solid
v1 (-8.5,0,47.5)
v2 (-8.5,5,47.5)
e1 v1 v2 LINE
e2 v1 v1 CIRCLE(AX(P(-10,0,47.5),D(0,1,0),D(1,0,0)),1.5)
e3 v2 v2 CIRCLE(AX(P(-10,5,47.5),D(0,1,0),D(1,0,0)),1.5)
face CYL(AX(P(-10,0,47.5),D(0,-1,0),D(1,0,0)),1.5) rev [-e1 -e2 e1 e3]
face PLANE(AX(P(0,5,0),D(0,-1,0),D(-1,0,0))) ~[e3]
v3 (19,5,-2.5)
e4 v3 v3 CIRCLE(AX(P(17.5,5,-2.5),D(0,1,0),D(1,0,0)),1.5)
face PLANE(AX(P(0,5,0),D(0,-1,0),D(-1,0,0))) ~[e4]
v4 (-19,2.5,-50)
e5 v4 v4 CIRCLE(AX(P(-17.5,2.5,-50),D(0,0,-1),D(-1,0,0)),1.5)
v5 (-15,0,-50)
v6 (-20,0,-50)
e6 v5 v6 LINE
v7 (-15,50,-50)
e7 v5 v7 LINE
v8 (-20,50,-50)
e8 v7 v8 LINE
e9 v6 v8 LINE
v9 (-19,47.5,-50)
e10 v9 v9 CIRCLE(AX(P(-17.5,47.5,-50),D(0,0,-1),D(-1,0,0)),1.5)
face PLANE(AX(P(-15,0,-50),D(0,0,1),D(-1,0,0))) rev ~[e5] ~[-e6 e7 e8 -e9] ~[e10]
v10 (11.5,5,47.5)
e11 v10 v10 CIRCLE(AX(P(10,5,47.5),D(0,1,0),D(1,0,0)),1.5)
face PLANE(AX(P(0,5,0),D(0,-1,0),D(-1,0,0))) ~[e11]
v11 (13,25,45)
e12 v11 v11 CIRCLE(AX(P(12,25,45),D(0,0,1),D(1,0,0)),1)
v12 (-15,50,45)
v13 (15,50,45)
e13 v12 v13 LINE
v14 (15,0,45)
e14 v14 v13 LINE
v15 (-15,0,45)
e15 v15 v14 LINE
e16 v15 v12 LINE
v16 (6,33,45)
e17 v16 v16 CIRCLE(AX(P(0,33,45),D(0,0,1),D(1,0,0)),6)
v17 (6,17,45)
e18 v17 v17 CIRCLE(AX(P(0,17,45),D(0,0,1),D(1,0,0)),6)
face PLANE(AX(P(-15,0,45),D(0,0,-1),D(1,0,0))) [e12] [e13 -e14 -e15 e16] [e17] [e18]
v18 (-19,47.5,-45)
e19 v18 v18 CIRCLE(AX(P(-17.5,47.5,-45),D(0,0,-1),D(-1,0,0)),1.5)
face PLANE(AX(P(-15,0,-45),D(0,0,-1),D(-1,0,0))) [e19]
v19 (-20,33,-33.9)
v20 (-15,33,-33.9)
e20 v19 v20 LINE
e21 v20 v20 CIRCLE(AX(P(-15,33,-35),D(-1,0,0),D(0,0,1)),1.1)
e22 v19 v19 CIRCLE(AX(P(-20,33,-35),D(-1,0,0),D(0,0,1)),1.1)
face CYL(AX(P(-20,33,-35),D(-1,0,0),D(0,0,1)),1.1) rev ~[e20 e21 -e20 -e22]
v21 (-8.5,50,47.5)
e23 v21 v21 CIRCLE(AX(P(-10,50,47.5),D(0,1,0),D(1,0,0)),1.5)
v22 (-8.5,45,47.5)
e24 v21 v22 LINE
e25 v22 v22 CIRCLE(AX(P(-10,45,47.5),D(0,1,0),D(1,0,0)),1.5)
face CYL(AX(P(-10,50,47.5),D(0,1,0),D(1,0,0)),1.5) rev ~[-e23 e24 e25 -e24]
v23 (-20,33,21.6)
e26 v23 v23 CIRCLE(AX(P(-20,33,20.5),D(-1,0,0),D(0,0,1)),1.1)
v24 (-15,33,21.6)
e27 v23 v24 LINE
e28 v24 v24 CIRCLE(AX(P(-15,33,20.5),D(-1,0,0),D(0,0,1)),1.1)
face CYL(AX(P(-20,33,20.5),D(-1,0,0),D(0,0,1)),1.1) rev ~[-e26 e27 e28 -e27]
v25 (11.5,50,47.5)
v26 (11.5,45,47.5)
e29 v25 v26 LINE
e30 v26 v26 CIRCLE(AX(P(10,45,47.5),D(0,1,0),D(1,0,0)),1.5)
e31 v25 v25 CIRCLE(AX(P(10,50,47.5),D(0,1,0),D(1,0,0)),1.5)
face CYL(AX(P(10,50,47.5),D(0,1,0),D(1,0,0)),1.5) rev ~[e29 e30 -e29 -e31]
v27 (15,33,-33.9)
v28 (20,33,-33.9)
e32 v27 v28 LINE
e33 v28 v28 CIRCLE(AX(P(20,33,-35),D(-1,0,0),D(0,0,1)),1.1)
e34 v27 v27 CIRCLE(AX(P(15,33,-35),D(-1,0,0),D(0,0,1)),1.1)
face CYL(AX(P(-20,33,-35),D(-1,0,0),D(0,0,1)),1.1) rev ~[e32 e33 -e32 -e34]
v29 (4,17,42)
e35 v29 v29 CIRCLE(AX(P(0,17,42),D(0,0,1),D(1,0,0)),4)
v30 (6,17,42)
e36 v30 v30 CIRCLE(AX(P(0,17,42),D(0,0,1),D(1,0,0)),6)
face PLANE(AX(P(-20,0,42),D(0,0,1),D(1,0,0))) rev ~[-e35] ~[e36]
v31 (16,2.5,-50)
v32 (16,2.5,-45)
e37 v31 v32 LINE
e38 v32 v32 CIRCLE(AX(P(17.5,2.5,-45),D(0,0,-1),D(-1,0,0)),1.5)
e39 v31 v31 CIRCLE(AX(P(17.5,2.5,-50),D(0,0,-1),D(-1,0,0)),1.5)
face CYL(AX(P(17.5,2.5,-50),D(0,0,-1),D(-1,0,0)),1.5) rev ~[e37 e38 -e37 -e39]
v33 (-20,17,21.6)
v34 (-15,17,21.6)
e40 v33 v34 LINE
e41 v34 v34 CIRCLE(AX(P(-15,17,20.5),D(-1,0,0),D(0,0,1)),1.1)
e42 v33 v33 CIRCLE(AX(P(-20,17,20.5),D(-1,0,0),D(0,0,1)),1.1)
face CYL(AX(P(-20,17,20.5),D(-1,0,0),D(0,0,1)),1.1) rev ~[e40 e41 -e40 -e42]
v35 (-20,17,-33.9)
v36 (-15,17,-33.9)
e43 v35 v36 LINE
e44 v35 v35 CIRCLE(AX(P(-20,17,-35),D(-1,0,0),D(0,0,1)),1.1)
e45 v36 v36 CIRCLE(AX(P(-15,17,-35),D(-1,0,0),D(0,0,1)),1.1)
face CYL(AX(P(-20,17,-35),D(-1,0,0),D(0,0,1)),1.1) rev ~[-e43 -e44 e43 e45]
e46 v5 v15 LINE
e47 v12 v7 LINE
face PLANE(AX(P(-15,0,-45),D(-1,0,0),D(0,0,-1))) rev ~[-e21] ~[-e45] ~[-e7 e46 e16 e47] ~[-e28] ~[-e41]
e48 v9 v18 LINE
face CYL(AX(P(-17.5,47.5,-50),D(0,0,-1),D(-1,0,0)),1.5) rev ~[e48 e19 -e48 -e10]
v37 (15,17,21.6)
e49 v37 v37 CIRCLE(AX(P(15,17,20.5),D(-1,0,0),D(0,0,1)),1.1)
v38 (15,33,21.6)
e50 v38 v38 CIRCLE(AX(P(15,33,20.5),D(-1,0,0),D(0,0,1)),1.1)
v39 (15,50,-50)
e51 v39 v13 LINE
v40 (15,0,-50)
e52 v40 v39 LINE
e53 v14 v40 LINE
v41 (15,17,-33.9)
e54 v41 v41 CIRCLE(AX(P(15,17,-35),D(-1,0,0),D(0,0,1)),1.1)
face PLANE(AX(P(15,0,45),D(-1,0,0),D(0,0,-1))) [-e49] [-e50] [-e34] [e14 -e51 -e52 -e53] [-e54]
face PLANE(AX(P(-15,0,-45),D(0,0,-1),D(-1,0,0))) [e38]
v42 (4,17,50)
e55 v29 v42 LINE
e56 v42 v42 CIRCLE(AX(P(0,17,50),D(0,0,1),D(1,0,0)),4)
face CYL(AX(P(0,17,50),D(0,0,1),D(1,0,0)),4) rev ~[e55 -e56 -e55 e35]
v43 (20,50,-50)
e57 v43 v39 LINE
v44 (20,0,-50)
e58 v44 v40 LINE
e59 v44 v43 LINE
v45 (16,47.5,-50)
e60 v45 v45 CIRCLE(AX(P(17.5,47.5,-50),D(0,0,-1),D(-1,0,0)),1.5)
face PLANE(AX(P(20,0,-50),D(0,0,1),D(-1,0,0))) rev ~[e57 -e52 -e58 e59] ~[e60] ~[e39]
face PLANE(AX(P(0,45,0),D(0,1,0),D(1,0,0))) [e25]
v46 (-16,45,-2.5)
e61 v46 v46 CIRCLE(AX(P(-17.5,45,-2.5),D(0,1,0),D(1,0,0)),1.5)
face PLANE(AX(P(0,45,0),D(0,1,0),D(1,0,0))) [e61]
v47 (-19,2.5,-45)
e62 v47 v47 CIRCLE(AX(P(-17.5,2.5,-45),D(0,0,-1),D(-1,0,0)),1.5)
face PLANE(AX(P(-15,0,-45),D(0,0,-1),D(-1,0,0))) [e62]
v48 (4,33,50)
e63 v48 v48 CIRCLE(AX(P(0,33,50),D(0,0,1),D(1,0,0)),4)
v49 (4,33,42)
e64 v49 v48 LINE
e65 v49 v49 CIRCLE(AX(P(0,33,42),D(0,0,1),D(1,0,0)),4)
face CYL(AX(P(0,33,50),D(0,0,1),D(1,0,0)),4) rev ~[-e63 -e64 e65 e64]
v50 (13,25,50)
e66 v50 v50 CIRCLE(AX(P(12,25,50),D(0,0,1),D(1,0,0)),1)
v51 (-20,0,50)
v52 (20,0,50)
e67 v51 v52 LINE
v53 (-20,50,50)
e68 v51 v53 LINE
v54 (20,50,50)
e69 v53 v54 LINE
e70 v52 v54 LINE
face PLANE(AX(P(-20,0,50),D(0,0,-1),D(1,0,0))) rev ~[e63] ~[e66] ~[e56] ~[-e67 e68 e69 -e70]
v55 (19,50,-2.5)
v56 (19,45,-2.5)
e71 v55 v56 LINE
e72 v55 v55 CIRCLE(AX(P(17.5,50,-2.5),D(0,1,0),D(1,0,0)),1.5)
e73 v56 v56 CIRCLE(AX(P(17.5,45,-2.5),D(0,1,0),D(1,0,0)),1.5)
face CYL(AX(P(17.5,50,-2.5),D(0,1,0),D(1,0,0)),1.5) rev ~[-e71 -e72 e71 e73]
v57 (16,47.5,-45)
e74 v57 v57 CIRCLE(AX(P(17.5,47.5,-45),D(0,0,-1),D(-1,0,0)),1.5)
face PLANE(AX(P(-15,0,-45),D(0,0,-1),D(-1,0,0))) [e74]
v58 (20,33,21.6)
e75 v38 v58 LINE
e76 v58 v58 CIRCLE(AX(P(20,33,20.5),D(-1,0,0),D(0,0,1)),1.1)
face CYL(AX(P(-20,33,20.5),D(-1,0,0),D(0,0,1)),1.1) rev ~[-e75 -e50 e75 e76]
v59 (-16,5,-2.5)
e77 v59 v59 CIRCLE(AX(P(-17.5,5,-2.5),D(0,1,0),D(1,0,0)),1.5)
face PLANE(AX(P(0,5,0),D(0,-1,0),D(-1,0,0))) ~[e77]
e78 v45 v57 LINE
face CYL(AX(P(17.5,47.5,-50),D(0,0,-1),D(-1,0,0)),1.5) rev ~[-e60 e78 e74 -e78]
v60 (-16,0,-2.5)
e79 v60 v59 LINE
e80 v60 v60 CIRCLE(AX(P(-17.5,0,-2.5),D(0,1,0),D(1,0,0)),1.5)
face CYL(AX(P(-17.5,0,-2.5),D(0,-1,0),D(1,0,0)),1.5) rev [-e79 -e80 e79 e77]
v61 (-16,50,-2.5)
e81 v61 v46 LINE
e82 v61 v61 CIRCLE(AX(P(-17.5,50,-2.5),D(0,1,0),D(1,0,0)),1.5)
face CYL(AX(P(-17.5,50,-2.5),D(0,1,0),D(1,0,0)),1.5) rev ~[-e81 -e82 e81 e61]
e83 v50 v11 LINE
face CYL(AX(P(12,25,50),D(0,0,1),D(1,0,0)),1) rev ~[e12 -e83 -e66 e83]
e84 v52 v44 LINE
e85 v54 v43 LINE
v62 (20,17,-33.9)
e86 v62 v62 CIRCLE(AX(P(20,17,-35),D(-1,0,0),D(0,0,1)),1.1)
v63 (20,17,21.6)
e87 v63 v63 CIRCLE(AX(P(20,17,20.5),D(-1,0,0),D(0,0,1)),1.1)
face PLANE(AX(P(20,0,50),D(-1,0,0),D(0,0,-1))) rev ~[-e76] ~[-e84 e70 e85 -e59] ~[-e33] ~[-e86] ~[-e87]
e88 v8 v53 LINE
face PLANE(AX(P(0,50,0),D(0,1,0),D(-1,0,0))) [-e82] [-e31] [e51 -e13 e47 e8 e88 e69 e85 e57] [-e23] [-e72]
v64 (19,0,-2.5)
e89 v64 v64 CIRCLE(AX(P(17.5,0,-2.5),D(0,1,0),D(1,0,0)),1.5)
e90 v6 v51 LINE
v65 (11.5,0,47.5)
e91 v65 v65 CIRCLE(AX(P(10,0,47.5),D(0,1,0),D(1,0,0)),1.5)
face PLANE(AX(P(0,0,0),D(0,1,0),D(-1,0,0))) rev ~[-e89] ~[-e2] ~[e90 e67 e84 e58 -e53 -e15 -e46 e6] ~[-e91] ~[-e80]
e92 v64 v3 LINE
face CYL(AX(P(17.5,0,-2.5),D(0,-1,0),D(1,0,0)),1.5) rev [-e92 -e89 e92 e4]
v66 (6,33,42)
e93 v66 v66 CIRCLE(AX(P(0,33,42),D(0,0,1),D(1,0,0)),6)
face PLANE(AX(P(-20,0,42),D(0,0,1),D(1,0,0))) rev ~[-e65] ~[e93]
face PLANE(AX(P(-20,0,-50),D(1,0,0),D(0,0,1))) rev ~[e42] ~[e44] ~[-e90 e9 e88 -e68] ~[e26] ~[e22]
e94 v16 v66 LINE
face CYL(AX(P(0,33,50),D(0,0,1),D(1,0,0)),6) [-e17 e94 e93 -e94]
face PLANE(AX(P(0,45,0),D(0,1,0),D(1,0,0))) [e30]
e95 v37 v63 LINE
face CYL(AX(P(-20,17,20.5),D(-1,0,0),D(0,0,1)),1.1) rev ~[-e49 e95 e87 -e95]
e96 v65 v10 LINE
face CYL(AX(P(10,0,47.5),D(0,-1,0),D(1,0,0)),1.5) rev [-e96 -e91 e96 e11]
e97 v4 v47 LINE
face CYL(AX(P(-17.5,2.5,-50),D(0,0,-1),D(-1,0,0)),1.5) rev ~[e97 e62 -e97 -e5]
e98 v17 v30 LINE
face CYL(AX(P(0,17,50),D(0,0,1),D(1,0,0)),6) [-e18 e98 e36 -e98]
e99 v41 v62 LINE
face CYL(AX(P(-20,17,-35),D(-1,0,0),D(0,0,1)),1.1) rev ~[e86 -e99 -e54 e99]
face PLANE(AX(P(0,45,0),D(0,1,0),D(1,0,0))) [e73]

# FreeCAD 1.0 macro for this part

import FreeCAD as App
import Part
import Sketcher

V = App.Vector


def add_polygon(sketch, points):
    """Adds a closed chain of lines whose ends are joined by coincident constraints."""
    first, n = sketch.GeometryCount, len(points)
    for a, b in zip(points, points[1:] + points[:1]):
        sketch.addGeometry(Part.LineSegment(App.Vector(*a, 0), App.Vector(*b, 0)), False)
    for i in range(n):
        sketch.addConstraint(Sketcher.Constraint("Coincident", first + i, 2, first + (i + 1) % n, 1))

doc = App.newDocument("Part")
body = doc.addObject("PartDesign::Body", "Body")

# Sketch on XZ plane
sketch1 = body.newObject("Sketcher::SketchObject", "Sketch")
sketch1.AttachmentSupport = (doc.getObject("XZ_Plane"), [""])
sketch1.MapMode = "FlatFace"
add_polygon(sketch1, [(-20, -50), (-20, 50), (20, 50), (20, -50), (15, -50), (15, 45), (-15, 45), (-15, -50)])  # lines 0-7
sketch1.addConstraint([
    Sketcher.Constraint("Vertical", 0),
    Sketcher.Constraint("Horizontal", 1),
    Sketcher.Constraint("Vertical", 2),
    Sketcher.Constraint("Horizontal", 3),
    Sketcher.Constraint("Vertical", 4),
    Sketcher.Constraint("Horizontal", 5),
    Sketcher.Constraint("Vertical", 6),
    Sketcher.Constraint("Horizontal", 7),
    Sketcher.Constraint("Symmetric", 0, 2, 2, 2, -1, 1),
    Sketcher.Constraint("Symmetric", 3, 2, 6, 2, -2),
    Sketcher.Constraint("DistanceX", 1, 1, 1, 2, 40.0),
    Sketcher.Constraint("DistanceX", 3, 2, 3, 1, 5.0),
    Sketcher.Constraint("DistanceY", 0, 1, 0, 2, 100.0),
    Sketcher.Constraint("DistanceY", 4, 2, 1, 2, 5.0),
])
pad1 = body.newObject("PartDesign::Pad", "Pad")
pad1.Profile = sketch1
pad1.Length = 50
pad1.Reversed = True

# Sketch on XY plane
sketch2 = body.newObject("Sketcher::SketchObject", "Sketch001")
sketch2.AttachmentSupport = (doc.getObject("XY_Plane"), [""])
sketch2.MapMode = "FlatFace"
sketch2.AttachmentOffset = App.Placement(V(0, 0, 50), App.Rotation())
sketch2.addGeometry([
    Part.Circle(V(0, 33, 0), V(0, 0, 1), 4),
    Part.Circle(V(0, 17, 0), V(0, 0, 1), 4),
    Part.Circle(V(12, 25, 0), V(0, 0, 1), 1),
], False)
sketch2.addConstraint([
    Sketcher.Constraint("Equal", 0, 1),
    Sketcher.Constraint("PointOnObject", 0, 3, -2),
    Sketcher.Constraint("PointOnObject", 1, 3, -2),
    Sketcher.Constraint("Diameter", 0, 8.0),
    Sketcher.Constraint("Diameter", 2, 2.0),
    Sketcher.Constraint("DistanceY", -1, 1, 2, 3, 25.0),
    Sketcher.Constraint("DistanceY", 1, 3, 0, 3, 16.0),
    Sketcher.Constraint("DistanceY", 2, 3, 0, 3, 8.0),
    Sketcher.Constraint("DistanceX", -1, 1, 2, 3, 12.0),
])
pocket1 = body.newObject("PartDesign::Pocket", "Pocket")
pocket1.Profile = sketch2
pocket1.Length = 5

# Sketch on XY plane
sketch3 = body.newObject("Sketcher::SketchObject", "Sketch002")
sketch3.AttachmentSupport = (doc.getObject("XY_Plane"), [""])
sketch3.MapMode = "FlatFace"
sketch3.AttachmentOffset = App.Placement(V(0, 0, 50), App.Rotation())
sketch3.addGeometry([
    Part.Circle(V(0, 33, 0), V(0, 0, 1), 6),
    Part.Circle(V(0, 33, 0), V(0, 0, 1), 4),
    Part.Circle(V(0, 17, 0), V(0, 0, 1), 6),
    Part.Circle(V(0, 17, 0), V(0, 0, 1), 4),
], False)
sketch3.addConstraint([
    Sketcher.Constraint("Coincident", 1, 3, 0, 3),
    Sketcher.Constraint("Coincident", 3, 3, 2, 3),
    Sketcher.Constraint("Equal", 0, 2),
    Sketcher.Constraint("Equal", 1, 3),
    Sketcher.Constraint("PointOnObject", 0, 3, -2),
    Sketcher.Constraint("PointOnObject", 2, 3, -2),
    Sketcher.Constraint("Diameter", 0, 12.0),
    Sketcher.Constraint("Diameter", 1, 8.0),
    Sketcher.Constraint("DistanceY", -1, 1, 0, 3, 33.0),
    Sketcher.Constraint("DistanceY", -1, 1, 2, 3, 17.0),
])
pad2 = body.newObject("PartDesign::Pad", "Pad001")
pad2.Profile = sketch3
pad2.Length = 8
pad2.Reversed = True

# Sketch on XY plane
sketch4 = body.newObject("Sketcher::SketchObject", "Sketch003")
sketch4.AttachmentSupport = (doc.getObject("XY_Plane"), [""])
sketch4.MapMode = "FlatFace"
sketch4.AttachmentOffset = App.Placement(V(0, 0, -50), App.Rotation())
sketch4.addGeometry([
    Part.Circle(V(-17.5, 47.5, 0), V(0, 0, 1), 1.5),
    Part.Circle(V(17.5, 47.5, 0), V(0, 0, 1), 1.5),
    Part.Circle(V(17.5, 2.5, 0), V(0, 0, 1), 1.5),
    Part.Circle(V(-17.5, 2.5, 0), V(0, 0, 1), 1.5),
], False)
sketch4.addConstraint([
    Sketcher.Constraint("Equal", 0, 1),
    Sketcher.Constraint("Equal", 1, 2),
    Sketcher.Constraint("Equal", 2, 3),
    Sketcher.Constraint("Symmetric", 0, 3, 1, 3, -2),
    Sketcher.Constraint("Symmetric", 2, 3, 3, 3, -2),
    Sketcher.Constraint("Vertical", 1, 3, 2, 3),
    Sketcher.Constraint("Diameter", 0, 3.0),
    Sketcher.Constraint("DistanceY", -1, 1, 2, 3, 2.5),
    Sketcher.Constraint("DistanceX", 0, 3, 1, 3, 35.0),
    Sketcher.Constraint("DistanceY", 2, 3, 1, 3, 45.0),
])
pocket2 = body.newObject("PartDesign::Pocket", "Pocket001")
pocket2.Profile = sketch4
pocket2.Length = 5
pocket2.Reversed = True

# Sketch on YZ plane
sketch5 = body.newObject("Sketcher::SketchObject", "Sketch004")
sketch5.AttachmentSupport = (doc.getObject("YZ_Plane"), [""])
sketch5.MapMode = "FlatFace"
sketch5.AttachmentOffset = App.Placement(V(0, 0, -20), App.Rotation())
sketch5.addGeometry([
    Part.Circle(V(33, -35, 0), V(0, 0, 1), 1.1),
    Part.Circle(V(33, 20.5, 0), V(0, 0, 1), 1.1),
    Part.Circle(V(17, -35, 0), V(0, 0, 1), 1.1),
    Part.Circle(V(17, 20.5, 0), V(0, 0, 1), 1.1),
], False)
sketch5.addConstraint([
    Sketcher.Constraint("Equal", 0, 1),
    Sketcher.Constraint("Equal", 1, 2),
    Sketcher.Constraint("Equal", 2, 3),
    Sketcher.Constraint("Horizontal", 0, 3, 2, 3),
    Sketcher.Constraint("Horizontal", 1, 3, 3, 3),
    Sketcher.Constraint("Vertical", 0, 3, 1, 3),
    Sketcher.Constraint("Vertical", 2, 3, 3, 3),
    Sketcher.Constraint("Diameter", 0, 2.2),
    Sketcher.Constraint("DistanceX", -1, 1, 2, 3, 17.0),
    Sketcher.Constraint("DistanceX", 2, 3, 0, 3, 16.0),
    Sketcher.Constraint("DistanceY", 0, 3, 1, 3, 55.5),
    Sketcher.Constraint("DistanceY", 0, 3, -1, 1, 35.0),
])
pocket3 = body.newObject("PartDesign::Pocket", "Pocket002")
pocket3.Profile = sketch5
pocket3.Type = "ThroughAll"
pocket3.Reversed = True

# Sketch on XZ plane
sketch6 = body.newObject("Sketcher::SketchObject", "Sketch005")
sketch6.AttachmentSupport = (doc.getObject("XZ_Plane"), [""])
sketch6.MapMode = "FlatFace"
sketch6.AttachmentOffset = App.Placement(V(0, 0, -50), App.Rotation())
sketch6.addGeometry([
    Part.Circle(V(10, 47.5, 0), V(0, 0, 1), 1.5),
    Part.Circle(V(-10, 47.5, 0), V(0, 0, 1), 1.5),
    Part.Circle(V(17.5, -2.5, 0), V(0, 0, 1), 1.5),
    Part.Circle(V(-17.5, -2.5, 0), V(0, 0, 1), 1.5),
], False)
sketch6.addConstraint([
    Sketcher.Constraint("Equal", 0, 1),
    Sketcher.Constraint("Equal", 1, 2),
    Sketcher.Constraint("Equal", 2, 3),
    Sketcher.Constraint("Symmetric", 0, 3, 1, 3, -2),
    Sketcher.Constraint("Symmetric", 2, 3, 3, 3, -2),
    Sketcher.Constraint("Diameter", 0, 3.0),
    Sketcher.Constraint("DistanceX", -1, 1, 0, 3, 10.0),
    Sketcher.Constraint("DistanceY", -1, 1, 0, 3, 47.5),
    Sketcher.Constraint("DistanceY", 2, 3, -1, 1, 2.5),
    Sketcher.Constraint("DistanceX", 3, 3, 2, 3, 35.0),
])
pocket4 = body.newObject("PartDesign::Pocket", "Pocket003")
pocket4.Profile = sketch6
pocket4.Length = 5
pocket4.Reversed = True
doc.recompute()

datumplane = body.newObject("PartDesign::Plane", "DatumPlane")
datumplane.AttachmentSupport = (doc.getObject("XZ_Plane"), [""])
datumplane.MapMode = "FlatFace"
datumplane.AttachmentOffset = App.Placement(V(0, 0, -25), App.Rotation())
mirrored = body.newObject("PartDesign::Mirrored", "Mirrored")
mirrored.Originals = [pocket4]
mirrored.MirrorPlane = (datumplane, [""])
body.Tip = mirrored

doc.recompute()
